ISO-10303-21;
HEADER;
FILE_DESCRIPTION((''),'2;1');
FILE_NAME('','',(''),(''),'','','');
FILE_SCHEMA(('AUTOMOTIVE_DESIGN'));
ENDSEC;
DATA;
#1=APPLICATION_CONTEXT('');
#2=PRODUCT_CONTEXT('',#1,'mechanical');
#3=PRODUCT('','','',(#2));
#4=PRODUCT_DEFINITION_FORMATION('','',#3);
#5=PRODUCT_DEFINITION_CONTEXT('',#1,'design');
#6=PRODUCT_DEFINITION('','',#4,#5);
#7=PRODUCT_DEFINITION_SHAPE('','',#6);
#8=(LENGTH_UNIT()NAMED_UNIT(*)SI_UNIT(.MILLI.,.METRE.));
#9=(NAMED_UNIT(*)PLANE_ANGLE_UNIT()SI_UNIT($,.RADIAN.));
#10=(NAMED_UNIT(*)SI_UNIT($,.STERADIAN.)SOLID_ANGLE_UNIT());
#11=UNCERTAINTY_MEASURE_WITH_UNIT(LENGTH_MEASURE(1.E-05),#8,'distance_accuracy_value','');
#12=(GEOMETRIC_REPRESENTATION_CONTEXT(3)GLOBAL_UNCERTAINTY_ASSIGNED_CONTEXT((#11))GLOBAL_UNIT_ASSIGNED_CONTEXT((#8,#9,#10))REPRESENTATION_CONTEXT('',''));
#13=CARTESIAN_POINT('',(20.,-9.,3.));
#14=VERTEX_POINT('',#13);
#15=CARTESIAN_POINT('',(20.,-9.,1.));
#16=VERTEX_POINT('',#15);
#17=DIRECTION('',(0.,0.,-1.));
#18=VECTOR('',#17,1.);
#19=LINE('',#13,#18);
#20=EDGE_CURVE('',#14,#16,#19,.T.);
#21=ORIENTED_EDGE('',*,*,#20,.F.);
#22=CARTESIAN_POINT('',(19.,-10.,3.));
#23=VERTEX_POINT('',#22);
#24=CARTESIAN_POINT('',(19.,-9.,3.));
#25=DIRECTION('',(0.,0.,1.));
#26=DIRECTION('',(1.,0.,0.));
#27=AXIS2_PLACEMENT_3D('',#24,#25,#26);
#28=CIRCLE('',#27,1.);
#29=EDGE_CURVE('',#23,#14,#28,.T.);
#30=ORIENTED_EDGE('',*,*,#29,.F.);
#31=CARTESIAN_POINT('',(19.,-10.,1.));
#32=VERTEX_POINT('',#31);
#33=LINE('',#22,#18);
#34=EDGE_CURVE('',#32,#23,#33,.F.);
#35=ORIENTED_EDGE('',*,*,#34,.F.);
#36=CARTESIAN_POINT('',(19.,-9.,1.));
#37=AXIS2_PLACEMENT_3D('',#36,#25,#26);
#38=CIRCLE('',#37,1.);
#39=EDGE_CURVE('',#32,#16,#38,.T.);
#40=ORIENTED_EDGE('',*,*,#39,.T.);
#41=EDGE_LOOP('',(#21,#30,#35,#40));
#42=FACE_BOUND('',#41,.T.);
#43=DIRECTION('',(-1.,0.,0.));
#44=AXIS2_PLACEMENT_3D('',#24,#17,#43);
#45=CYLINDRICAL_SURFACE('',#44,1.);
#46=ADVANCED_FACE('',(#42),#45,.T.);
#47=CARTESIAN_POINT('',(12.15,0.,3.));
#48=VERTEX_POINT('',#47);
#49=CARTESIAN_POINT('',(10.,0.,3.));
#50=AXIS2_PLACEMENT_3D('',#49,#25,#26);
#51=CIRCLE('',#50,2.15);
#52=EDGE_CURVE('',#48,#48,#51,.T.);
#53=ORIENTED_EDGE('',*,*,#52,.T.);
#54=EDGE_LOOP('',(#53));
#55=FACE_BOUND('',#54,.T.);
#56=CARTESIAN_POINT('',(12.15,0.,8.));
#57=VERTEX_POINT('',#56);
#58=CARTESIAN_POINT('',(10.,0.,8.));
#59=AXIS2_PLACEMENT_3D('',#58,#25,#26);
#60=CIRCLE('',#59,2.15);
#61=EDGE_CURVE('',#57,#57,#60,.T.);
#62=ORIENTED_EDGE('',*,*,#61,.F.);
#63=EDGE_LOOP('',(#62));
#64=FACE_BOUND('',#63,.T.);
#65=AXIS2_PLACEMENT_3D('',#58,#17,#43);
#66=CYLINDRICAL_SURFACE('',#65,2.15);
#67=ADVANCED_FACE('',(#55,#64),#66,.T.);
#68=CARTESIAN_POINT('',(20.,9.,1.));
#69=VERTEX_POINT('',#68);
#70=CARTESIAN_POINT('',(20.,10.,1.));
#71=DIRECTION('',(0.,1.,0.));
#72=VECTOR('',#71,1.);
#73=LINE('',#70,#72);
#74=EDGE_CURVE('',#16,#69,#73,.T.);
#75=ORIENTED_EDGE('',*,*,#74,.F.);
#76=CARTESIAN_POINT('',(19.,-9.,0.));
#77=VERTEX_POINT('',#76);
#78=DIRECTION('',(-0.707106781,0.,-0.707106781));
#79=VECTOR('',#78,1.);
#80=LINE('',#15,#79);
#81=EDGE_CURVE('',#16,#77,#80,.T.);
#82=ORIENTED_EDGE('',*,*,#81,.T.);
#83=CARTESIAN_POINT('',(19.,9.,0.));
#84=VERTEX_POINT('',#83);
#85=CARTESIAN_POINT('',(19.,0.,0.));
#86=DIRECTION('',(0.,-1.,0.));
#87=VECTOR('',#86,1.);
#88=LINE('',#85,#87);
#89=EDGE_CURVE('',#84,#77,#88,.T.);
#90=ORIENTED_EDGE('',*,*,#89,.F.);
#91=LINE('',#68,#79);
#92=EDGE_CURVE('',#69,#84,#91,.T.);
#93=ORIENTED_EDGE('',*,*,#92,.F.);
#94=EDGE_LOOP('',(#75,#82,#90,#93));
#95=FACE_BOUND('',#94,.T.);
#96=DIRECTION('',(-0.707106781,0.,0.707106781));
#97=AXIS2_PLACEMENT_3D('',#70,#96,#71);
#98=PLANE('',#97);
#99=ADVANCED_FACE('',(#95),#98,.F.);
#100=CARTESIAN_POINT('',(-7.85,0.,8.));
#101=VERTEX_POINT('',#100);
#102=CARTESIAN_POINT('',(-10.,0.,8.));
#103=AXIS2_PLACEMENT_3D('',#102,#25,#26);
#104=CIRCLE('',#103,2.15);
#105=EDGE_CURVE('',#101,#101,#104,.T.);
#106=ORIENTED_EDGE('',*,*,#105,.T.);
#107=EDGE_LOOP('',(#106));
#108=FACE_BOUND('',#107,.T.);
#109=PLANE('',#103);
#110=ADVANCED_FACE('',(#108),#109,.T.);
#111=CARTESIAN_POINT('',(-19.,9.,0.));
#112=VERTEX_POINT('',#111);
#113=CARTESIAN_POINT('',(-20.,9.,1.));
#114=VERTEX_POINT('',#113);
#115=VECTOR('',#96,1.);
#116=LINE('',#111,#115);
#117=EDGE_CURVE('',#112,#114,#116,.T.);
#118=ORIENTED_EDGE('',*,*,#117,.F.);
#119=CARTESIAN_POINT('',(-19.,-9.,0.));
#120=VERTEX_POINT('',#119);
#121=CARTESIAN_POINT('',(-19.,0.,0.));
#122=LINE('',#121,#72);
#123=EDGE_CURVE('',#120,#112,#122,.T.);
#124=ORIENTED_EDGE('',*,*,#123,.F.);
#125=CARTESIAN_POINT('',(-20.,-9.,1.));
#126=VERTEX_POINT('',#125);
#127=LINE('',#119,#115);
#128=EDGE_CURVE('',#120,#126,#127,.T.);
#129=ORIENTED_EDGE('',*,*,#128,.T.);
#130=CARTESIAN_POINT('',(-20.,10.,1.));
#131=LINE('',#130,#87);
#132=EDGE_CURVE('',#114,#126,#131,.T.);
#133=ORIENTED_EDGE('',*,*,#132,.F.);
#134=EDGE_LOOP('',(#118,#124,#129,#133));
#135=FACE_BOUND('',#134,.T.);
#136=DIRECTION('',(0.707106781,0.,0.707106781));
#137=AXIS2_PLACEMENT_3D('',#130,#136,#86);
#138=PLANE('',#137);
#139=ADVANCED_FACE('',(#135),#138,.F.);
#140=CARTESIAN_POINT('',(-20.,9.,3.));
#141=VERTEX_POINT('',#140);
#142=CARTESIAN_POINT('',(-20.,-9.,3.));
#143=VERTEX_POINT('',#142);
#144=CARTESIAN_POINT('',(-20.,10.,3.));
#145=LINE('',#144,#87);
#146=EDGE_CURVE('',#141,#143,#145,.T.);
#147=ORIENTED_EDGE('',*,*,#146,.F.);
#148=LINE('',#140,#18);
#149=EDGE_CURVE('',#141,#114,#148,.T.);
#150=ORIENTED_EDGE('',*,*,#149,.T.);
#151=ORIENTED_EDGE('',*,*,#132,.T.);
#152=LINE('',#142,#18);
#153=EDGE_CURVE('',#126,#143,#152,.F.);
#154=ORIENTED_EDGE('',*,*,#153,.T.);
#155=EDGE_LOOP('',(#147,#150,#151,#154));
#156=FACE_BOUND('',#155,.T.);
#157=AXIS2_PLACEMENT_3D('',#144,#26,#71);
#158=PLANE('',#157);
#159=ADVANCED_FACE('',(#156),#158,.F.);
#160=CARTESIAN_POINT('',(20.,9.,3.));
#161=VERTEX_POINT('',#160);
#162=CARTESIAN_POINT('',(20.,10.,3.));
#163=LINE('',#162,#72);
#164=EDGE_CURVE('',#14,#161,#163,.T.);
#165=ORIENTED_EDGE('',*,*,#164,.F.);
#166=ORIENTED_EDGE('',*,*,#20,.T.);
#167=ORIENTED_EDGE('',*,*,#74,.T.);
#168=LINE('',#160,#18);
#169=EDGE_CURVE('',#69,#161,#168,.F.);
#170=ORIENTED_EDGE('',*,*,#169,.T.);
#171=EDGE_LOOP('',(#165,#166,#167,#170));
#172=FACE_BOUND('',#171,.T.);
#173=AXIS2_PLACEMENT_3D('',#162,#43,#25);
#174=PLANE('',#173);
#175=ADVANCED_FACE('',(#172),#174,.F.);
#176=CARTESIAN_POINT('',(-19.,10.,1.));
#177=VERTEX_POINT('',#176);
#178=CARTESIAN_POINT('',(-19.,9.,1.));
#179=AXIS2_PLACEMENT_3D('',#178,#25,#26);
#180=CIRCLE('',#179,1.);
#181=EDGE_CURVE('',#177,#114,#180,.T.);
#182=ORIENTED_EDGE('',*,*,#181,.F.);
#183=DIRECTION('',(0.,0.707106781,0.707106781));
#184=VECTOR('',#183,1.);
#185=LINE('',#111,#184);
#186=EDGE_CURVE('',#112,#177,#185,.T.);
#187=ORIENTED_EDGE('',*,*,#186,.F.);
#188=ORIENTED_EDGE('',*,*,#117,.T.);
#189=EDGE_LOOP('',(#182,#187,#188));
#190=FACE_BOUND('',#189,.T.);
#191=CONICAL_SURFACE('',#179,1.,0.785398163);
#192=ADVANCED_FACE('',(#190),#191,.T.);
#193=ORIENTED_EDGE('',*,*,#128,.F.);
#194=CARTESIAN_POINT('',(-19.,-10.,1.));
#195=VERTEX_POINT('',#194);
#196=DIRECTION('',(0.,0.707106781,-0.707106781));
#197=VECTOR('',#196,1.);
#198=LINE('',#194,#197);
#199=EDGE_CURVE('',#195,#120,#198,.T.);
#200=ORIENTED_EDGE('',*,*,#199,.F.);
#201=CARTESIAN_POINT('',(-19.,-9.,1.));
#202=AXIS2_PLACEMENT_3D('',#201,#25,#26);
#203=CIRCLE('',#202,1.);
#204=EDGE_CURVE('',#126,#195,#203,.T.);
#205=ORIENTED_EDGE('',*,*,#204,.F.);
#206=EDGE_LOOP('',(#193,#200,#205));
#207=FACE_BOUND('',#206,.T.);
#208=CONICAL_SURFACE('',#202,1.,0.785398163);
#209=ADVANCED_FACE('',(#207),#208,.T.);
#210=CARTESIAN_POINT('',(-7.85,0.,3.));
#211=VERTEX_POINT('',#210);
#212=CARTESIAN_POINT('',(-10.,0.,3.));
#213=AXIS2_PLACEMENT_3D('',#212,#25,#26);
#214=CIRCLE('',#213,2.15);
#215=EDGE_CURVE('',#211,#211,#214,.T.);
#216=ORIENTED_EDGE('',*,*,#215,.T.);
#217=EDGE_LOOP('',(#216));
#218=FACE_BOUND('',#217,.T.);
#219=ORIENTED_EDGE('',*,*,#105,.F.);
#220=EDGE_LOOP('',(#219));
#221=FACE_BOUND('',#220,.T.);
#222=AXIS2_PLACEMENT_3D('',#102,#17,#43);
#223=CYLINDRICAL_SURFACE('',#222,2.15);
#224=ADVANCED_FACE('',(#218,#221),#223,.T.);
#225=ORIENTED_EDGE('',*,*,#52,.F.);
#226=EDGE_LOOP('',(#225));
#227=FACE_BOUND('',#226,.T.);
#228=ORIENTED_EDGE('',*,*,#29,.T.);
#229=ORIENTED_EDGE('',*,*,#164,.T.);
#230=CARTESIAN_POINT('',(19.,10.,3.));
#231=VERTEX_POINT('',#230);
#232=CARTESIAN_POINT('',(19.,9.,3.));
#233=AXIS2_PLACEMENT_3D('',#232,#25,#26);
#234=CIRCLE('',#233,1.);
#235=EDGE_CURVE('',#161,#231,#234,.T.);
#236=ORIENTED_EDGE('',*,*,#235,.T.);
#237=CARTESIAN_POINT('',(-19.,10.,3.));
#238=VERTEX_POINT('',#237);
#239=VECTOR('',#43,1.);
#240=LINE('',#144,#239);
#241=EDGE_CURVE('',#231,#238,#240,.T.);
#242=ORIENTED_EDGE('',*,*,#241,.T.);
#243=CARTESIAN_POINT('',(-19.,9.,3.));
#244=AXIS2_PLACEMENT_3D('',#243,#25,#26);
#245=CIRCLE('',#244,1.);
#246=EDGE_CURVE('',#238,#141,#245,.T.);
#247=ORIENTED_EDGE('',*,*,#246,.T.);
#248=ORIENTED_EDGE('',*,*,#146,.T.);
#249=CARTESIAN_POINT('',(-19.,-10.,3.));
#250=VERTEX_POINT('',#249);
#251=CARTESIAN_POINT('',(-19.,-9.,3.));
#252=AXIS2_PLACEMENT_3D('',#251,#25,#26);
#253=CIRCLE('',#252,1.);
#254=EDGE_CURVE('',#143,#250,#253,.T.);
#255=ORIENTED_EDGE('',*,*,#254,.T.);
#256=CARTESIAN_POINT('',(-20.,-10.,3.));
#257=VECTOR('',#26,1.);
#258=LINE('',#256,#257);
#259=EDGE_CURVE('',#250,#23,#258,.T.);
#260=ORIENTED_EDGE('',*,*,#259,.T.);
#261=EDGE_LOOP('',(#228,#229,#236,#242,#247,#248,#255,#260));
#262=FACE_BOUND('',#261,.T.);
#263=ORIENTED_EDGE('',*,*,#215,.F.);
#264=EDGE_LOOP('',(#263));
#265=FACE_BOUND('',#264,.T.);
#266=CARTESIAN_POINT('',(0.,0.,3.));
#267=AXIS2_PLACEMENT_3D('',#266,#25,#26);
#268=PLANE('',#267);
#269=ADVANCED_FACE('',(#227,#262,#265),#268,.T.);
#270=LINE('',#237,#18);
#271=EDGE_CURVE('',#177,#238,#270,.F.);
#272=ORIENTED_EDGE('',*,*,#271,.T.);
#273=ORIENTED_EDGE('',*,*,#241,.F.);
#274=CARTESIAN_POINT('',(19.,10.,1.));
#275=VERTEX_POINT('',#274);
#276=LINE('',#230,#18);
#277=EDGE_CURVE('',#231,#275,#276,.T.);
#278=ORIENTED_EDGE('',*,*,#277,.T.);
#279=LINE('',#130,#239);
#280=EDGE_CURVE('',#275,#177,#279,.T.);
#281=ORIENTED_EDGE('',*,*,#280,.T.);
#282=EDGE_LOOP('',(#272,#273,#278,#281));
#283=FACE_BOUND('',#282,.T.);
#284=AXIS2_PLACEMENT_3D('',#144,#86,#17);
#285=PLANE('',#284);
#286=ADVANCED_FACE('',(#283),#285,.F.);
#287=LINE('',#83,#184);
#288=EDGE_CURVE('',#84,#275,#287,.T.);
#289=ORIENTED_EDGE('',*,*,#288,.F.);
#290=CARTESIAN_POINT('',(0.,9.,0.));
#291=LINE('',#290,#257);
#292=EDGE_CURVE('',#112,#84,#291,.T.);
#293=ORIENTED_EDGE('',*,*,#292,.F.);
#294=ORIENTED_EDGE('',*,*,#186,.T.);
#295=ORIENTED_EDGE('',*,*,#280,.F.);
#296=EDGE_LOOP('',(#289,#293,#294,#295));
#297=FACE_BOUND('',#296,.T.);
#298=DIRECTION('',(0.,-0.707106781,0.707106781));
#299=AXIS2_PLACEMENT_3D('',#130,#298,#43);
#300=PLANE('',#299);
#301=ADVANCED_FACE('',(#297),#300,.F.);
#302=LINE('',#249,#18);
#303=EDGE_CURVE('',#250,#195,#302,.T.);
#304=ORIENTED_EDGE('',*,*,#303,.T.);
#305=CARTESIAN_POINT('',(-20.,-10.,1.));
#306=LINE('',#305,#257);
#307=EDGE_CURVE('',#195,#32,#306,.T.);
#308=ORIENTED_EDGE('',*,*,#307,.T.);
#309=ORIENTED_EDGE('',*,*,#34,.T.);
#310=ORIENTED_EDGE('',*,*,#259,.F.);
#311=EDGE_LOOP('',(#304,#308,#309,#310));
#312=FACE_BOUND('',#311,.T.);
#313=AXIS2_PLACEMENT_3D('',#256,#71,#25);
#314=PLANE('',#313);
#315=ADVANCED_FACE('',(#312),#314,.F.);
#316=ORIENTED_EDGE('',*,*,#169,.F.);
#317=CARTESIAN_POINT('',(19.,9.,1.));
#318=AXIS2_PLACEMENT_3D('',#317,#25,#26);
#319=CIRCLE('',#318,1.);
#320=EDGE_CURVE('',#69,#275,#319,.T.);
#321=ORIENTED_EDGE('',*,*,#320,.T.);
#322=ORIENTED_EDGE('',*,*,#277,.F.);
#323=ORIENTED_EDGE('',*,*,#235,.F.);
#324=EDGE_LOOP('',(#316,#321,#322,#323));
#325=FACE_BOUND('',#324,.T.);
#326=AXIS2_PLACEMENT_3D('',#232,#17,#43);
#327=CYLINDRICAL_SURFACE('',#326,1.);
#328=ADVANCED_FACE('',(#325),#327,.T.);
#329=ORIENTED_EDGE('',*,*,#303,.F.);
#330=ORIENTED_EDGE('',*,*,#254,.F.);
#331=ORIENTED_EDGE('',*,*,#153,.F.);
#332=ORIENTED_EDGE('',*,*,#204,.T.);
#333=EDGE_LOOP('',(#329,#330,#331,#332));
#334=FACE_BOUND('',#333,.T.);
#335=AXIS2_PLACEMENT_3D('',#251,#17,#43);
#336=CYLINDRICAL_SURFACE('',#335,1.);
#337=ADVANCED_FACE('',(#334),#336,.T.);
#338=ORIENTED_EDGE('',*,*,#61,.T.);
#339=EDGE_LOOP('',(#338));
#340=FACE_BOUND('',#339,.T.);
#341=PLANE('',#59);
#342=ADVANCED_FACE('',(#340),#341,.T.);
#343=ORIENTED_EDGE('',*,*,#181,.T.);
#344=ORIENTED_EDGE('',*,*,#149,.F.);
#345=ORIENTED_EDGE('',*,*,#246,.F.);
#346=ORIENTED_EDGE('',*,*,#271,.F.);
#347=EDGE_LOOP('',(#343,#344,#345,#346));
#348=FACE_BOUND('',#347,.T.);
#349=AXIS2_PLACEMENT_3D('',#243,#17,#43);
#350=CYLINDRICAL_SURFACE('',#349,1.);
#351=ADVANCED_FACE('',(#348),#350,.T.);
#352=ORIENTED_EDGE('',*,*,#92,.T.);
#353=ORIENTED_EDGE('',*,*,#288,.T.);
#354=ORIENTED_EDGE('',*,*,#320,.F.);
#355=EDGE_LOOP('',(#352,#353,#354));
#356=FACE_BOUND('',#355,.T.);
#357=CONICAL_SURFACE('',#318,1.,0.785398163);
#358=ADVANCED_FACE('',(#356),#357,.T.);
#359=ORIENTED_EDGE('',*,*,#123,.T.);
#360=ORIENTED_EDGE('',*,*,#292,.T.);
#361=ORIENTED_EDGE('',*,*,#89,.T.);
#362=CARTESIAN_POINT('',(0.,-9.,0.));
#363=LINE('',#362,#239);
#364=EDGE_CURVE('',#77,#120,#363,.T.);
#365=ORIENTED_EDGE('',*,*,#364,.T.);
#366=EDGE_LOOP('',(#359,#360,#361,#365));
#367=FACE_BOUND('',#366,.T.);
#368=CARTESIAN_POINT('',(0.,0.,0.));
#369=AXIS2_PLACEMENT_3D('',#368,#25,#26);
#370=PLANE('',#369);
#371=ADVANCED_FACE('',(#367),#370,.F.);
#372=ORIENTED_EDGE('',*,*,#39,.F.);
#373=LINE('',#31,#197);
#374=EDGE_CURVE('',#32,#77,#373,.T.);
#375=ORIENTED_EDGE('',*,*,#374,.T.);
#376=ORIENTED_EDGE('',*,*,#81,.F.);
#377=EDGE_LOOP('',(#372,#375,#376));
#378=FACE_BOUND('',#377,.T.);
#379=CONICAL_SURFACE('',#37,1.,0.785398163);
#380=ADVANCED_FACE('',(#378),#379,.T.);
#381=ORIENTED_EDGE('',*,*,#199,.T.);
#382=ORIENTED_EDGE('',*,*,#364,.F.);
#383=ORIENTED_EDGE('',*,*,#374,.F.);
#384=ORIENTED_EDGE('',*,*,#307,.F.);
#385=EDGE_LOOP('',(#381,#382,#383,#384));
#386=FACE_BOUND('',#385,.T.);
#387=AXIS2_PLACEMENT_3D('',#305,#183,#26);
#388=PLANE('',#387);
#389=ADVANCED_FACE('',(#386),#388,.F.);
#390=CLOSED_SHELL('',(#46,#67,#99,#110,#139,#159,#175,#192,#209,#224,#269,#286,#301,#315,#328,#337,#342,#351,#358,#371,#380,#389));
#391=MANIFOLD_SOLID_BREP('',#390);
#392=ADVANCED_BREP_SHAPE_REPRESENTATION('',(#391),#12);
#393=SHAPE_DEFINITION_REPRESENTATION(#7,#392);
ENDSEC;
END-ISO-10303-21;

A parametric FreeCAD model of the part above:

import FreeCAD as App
import Part
import Sketcher
from FreeCAD import Vector
Q = App.Units.Quantity


def edges_at(feature, points):
    """Names of the edges that pass closest to the given points."""
    edges = feature.Shape.Edges
    near = lambda p: min(range(len(edges)), key=lambda i: edges[i].distToShape(Part.Vertex(*p))[0])
    return sorted({f"Edge{near(p) + 1}" for p in points})


def add_polygon(sketch, points):
    """Adds a closed chain of lines whose ends are joined by coincident constraints."""
    first, n = sketch.GeometryCount, len(points)
    for a, b in zip(points, points[1:] + points[:1]):
        sketch.addGeometry(Part.LineSegment(App.Vector(*a, 0), App.Vector(*b, 0)), False)
    for i in range(n):
        sketch.addConstraint(Sketcher.Constraint("Coincident", first + i, 2, first + (i + 1) % n, 1))

doc = App.newDocument("Part")
body = doc.addObject("PartDesign::Body", "Body")

sketch1 = doc.addObject("Sketcher::SketchObject", "Sketch")
body.addObject(sketch1)
sketch1.AttachmentSupport = (doc.XY_Plane, [""])
sketch1.MapMode = "FlatFace"
add_polygon(sketch1, [(-20, 10), (-20, -10), (20, -10), (20, 10)])
sketch1.addConstraint([
    Sketcher.Constraint("Vertical", 0),
    Sketcher.Constraint("Horizontal", 1),
    Sketcher.Constraint("Vertical", 2),
    Sketcher.Constraint("Horizontal", 3),
    Sketcher.Constraint("Symmetric", 0, 2, 2, 2, -1, 1),
    Sketcher.Constraint("DistanceX", 1, 1, 1, 2, Q("40 mm")),
    Sketcher.Constraint("DistanceY", 0, 2, 0, 1, Q("20 mm")),
])
pad1 = doc.addObject("PartDesign::Pad", "Pad")
body.addObject(pad1)
pad1.Profile = sketch1
pad1.Length = 3

sketch2 = doc.addObject("Sketcher::SketchObject", "Sketch001")
body.addObject(sketch2)
sketch2.AttachmentSupport = (doc.XY_Plane, [""])
sketch2.MapMode = "FlatFace"
sketch2.AttachmentOffset = App.Placement(Vector(0, 0, 3), App.Rotation())
sketch2.addGeometry([
    Part.Circle(Vector(10, 0, 0), Vector(0, 0, 1), 2.15),
    Part.Circle(Vector(-10, 0, 0), Vector(0, 0, 1), 2.15),
], False)
sketch2.addConstraint([
    Sketcher.Constraint("Equal", 0, 1),
    Sketcher.Constraint("Symmetric", 0, 3, 1, 3, -1, 1),
    Sketcher.Constraint("PointOnObject", 0, 3, -1),
    Sketcher.Constraint("Diameter", 0, Q("4.3 mm")),
    Sketcher.Constraint("DistanceX", -1, 1, 0, 3, Q("10 mm")),
])
pad2 = doc.addObject("PartDesign::Pad", "Pad001")
body.addObject(pad2)
pad2.Profile = sketch2
pad2.Length = 5
doc.recompute()

fillet = doc.addObject("PartDesign::Fillet", "Fillet")
body.addObject(fillet)
fillet.Base = (pad2, edges_at(pad2, [
    (20, -10, 1.5),
    (-20, -10, 1.5),
    (-20, 10, 1.5),
    (20, 10, 1.5),
]))
fillet.Radius = 1
doc.recompute()

chamfer = doc.addObject("PartDesign::Chamfer", "Chamfer")
body.addObject(chamfer)
chamfer.Base = (fillet, edges_at(fillet, [
    (20, 0, 0),
    (0, -10, 0),
    (-20, 0, 0),
    (0, 10, 0),
    (-19.707, 9.707, 0),
    (19.707, 9.707, 0),
    (-19.707, -9.707, 0),
    (19.707, -9.707, 0),
]))
chamfer.Size = 1

doc.recompute()
